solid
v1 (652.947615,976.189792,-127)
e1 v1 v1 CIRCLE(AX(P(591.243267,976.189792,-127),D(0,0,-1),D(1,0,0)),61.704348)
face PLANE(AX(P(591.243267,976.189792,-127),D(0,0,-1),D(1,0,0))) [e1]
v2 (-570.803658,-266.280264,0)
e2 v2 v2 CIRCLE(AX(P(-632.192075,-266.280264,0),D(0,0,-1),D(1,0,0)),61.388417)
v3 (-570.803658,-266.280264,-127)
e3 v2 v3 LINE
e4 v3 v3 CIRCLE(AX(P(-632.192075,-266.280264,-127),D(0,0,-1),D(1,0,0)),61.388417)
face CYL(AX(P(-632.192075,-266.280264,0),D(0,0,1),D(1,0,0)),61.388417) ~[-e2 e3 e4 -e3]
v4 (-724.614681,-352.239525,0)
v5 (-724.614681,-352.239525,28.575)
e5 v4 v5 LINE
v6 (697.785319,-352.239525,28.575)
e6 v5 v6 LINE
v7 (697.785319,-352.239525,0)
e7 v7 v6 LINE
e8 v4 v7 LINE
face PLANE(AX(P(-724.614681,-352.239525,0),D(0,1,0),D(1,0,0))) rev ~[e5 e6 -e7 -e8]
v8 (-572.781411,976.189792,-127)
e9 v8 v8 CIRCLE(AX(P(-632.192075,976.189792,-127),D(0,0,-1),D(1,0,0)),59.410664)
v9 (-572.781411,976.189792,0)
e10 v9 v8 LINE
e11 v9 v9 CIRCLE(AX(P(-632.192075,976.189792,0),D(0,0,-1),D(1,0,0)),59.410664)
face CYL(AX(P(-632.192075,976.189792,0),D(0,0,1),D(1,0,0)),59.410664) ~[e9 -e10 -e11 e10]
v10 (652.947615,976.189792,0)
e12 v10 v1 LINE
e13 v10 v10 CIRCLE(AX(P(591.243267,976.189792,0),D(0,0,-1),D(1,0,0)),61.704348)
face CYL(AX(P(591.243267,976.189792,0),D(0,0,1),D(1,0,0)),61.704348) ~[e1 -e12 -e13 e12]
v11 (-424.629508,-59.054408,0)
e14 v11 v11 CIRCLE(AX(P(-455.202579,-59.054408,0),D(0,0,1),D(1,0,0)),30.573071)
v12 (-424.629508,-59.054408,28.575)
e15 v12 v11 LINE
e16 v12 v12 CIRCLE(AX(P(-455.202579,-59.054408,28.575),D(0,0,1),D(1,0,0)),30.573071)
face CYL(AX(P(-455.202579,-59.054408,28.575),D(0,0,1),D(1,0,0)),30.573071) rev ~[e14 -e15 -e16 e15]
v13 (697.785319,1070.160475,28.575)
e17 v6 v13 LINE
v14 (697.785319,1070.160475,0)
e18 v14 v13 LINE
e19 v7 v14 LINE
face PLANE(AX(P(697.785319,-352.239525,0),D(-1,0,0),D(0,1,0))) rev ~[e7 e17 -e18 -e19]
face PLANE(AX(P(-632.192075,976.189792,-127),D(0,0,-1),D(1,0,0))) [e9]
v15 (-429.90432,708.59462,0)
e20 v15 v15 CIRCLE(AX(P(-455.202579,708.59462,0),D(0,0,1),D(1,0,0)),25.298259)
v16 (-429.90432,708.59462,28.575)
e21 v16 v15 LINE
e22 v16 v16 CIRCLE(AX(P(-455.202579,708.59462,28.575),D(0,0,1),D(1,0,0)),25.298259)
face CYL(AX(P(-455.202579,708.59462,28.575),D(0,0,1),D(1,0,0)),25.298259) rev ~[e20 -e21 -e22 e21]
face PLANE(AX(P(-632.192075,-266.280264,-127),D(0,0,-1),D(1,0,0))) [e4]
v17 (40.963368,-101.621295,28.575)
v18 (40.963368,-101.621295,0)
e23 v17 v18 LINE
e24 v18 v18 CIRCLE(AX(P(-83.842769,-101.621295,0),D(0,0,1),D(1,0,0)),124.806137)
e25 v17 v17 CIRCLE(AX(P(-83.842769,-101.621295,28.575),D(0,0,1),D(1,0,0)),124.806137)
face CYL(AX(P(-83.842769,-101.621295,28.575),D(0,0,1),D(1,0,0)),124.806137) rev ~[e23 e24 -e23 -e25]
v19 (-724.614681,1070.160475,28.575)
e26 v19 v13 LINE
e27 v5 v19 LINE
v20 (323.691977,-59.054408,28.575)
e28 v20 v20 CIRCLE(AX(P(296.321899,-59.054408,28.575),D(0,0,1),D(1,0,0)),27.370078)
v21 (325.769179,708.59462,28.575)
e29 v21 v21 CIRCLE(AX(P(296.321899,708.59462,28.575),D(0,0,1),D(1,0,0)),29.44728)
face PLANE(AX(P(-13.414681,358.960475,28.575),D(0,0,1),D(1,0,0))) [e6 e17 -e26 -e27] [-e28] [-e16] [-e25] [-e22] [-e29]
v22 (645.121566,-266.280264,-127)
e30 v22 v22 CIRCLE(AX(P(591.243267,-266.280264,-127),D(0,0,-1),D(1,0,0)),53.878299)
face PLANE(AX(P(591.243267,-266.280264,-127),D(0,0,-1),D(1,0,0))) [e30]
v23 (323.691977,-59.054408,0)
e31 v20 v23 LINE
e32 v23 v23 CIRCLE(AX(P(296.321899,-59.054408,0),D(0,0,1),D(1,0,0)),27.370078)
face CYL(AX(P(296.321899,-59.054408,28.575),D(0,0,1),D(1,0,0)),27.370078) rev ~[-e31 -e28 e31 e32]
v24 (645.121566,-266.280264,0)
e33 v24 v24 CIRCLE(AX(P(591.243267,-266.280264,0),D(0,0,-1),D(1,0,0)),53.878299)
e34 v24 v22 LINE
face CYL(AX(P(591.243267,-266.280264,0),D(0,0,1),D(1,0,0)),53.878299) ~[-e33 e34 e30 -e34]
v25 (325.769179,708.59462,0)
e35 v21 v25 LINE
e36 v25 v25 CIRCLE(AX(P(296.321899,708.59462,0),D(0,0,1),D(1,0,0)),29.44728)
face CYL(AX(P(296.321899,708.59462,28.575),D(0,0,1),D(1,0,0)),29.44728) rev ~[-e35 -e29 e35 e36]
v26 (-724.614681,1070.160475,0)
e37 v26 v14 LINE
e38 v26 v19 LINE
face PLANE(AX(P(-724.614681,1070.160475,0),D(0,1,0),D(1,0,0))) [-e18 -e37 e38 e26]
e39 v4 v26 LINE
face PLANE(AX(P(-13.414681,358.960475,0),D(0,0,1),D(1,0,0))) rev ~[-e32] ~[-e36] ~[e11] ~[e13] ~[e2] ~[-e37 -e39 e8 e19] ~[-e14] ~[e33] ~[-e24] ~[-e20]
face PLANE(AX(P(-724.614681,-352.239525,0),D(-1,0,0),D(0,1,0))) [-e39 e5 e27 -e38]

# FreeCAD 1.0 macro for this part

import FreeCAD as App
import Part
import Sketcher
Q = App.Units.Quantity


def add_polygon(sketch, points):
    """Adds a closed chain of lines whose ends are joined by coincident constraints."""
    first, n = sketch.GeometryCount, len(points)
    for a, b in zip(points, points[1:] + points[:1]):
        sketch.addGeometry(Part.LineSegment(App.Vector(*a, 0), App.Vector(*b, 0)), False)
    for i in range(n):
        sketch.addConstraint(Sketcher.Constraint("Coincident", first + i, 2, first + (i + 1) % n, 1))

doc = App.newDocument("Part")
body = doc.addObject("PartDesign::Body", "Body")

# Sketch on XY plane
sketch1 = body.newObject("Sketcher::SketchObject", "Sketch")
sketch1.AttachmentSupport = (doc.getObject("XY_Plane"), [""])
sketch1.MapMode = "FlatFace"
add_polygon(sketch1, [(-724.614681, 1070.160475), (-724.614681, -352.239525), (697.785319, -352.239525), (697.785319, 1070.160475)])  # lines 0-3
sketch1.addConstraint(Sketcher.Constraint("Vertical", 0))
sketch1.addConstraint(Sketcher.Constraint("Horizontal", 1))
sketch1.addConstraint(Sketcher.Constraint("Vertical", 2))
sketch1.addConstraint(Sketcher.Constraint("Horizontal", 3))
sketch1.addConstraint(Sketcher.Constraint("Equal", 3, 0))
sketch1.addConstraint(Sketcher.Constraint("DistanceX", 1, 1, 1, 2, Q("56 in")))
sketch1.addConstraint(Sketcher.Constraint("DistanceX", 0, 2, -1, 1, 724.614681))
sketch1.addConstraint(Sketcher.Constraint("DistanceY", 0, 2, -1, 1, 352.239525))
pad1 = body.newObject("PartDesign::Pad", "Pad")
pad1.Profile = sketch1
pad1.Length = Q("1.125 in")

# Sketch on XY plane
sketch2 = body.newObject("Sketcher::SketchObject", "Sketch001")
sketch2.AttachmentSupport = (doc.getObject("XY_Plane"), [""])
sketch2.MapMode = "FlatFace"
sketch2.addGeometry(Part.Circle(App.Vector(591.243267, -266.280264, 0), App.Vector(0, 0, 1), 53.878299), False)
sketch2.addGeometry(Part.Circle(App.Vector(591.243267, 976.189792, 0), App.Vector(0, 0, 1), 61.704348), False)
sketch2.addGeometry(Part.Circle(App.Vector(-632.192075, 976.189792, 0), App.Vector(0, 0, 1), 59.410664), False)
sketch2.addGeometry(Part.Circle(App.Vector(-632.192075, -266.280264, 0), App.Vector(0, 0, 1), 61.388417), False)
sketch2.addConstraint(Sketcher.Constraint("Horizontal", 1, 3, 2, 3))
sketch2.addConstraint(Sketcher.Constraint("Horizontal", 0, 3, 3, 3))
sketch2.addConstraint(Sketcher.Constraint("Vertical", 0, 3, 1, 3))
sketch2.addConstraint(Sketcher.Constraint("Vertical", 2, 3, 3, 3))
sketch2.addConstraint(Sketcher.Constraint("Diameter", 0, 107.756598))
sketch2.addConstraint(Sketcher.Constraint("Diameter", 1, 123.408696))
sketch2.addConstraint(Sketcher.Constraint("Diameter", 2, 118.821328))
sketch2.addConstraint(Sketcher.Constraint("Diameter", 3, 122.776834))
sketch2.addConstraint(Sketcher.Constraint("DistanceY", -1, 1, 1, 3, 976.189792))
sketch2.addConstraint(Sketcher.Constraint("DistanceX", 2, 3, 1, 3, 1223.435342))
sketch2.addConstraint(Sketcher.Constraint("DistanceX", -1, 1, 0, 3, 591.243267))
sketch2.addConstraint(Sketcher.Constraint("DistanceY", 0, 3, -1, 1, 266.280264))
pad2 = body.newObject("PartDesign::Pad", "Pad001")
pad2.Profile = sketch2
pad2.Length = Q("5 in")
pad2.Reversed = True

# Sketch on XY plane
sketch3 = body.newObject("Sketcher::SketchObject", "Sketch002")
sketch3.AttachmentSupport = (doc.getObject("XY_Plane"), [""])
sketch3.MapMode = "FlatFace"
sketch3.AttachmentOffset = App.Placement(App.Vector(0, 0, 1.125 * 25.4), App.Rotation())
sketch3.addGeometry(Part.Circle(App.Vector(296.321899, 708.59462, 0), App.Vector(0, 0, 1), 29.44728), False)
sketch3.addGeometry(Part.Circle(App.Vector(-455.202579, 708.59462, 0), App.Vector(0, 0, 1), 25.298259), False)
sketch3.addGeometry(Part.Circle(App.Vector(-455.202579, -59.054408, 0), App.Vector(0, 0, 1), 30.573071), False)
sketch3.addGeometry(Part.Circle(App.Vector(296.321899, -59.054408, 0), App.Vector(0, 0, 1), 27.370078), False)
sketch3.addConstraint(Sketcher.Constraint("Horizontal", 0, 3, 1, 3))
sketch3.addConstraint(Sketcher.Constraint("Horizontal", 2, 3, 3, 3))
sketch3.addConstraint(Sketcher.Constraint("Vertical", 1, 3, 2, 3))
sketch3.addConstraint(Sketcher.Constraint("Vertical", 0, 3, 3, 3))
sketch3.addConstraint(Sketcher.Constraint("Diameter", 0, 58.89456))
sketch3.addConstraint(Sketcher.Constraint("Diameter", 1, 50.596518))
sketch3.addConstraint(Sketcher.Constraint("Diameter", 2, 61.146142))
sketch3.addConstraint(Sketcher.Constraint("Diameter", 3, 54.740156))
sketch3.addConstraint(Sketcher.Constraint("DistanceX", -1, 1, 0, 3, 296.321899))
sketch3.addConstraint(Sketcher.Constraint("DistanceY", -1, 1, 0, 3, 708.59462))
sketch3.addConstraint(Sketcher.Constraint("DistanceX", 1, 3, -1, 1, 455.202579))
sketch3.addConstraint(Sketcher.Constraint("DistanceY", 2, 3, -1, 1, 59.054408))
pocket1 = body.newObject("PartDesign::Pocket", "Pocket")
pocket1.Profile = sketch3
pocket1.Length = 428.45566

# Sketch on XY plane
sketch4 = body.newObject("Sketcher::SketchObject", "Sketch003")
sketch4.AttachmentSupport = (doc.getObject("XY_Plane"), [""])
sketch4.MapMode = "FlatFace"
sketch4.AttachmentOffset = App.Placement(App.Vector(0, 0, 1.125 * 25.4), App.Rotation())
sketch4.addGeometry(Part.Circle(App.Vector(-83.842769, -101.621295, 0), App.Vector(0, 0, 1), 124.806137), False)
sketch4.addConstraint(Sketcher.Constraint("Diameter", 0, 249.612274))
sketch4.addConstraint(Sketcher.Constraint("DistanceX", 0, 3, -1, 1, 83.842769))
sketch4.addConstraint(Sketcher.Constraint("DistanceY", 0, 3, -1, 1, 101.621295))
pocket2 = body.newObject("PartDesign::Pocket", "Pocket001")
pocket2.Profile = sketch4
pocket2.Length = 511.49744

doc.recompute()
